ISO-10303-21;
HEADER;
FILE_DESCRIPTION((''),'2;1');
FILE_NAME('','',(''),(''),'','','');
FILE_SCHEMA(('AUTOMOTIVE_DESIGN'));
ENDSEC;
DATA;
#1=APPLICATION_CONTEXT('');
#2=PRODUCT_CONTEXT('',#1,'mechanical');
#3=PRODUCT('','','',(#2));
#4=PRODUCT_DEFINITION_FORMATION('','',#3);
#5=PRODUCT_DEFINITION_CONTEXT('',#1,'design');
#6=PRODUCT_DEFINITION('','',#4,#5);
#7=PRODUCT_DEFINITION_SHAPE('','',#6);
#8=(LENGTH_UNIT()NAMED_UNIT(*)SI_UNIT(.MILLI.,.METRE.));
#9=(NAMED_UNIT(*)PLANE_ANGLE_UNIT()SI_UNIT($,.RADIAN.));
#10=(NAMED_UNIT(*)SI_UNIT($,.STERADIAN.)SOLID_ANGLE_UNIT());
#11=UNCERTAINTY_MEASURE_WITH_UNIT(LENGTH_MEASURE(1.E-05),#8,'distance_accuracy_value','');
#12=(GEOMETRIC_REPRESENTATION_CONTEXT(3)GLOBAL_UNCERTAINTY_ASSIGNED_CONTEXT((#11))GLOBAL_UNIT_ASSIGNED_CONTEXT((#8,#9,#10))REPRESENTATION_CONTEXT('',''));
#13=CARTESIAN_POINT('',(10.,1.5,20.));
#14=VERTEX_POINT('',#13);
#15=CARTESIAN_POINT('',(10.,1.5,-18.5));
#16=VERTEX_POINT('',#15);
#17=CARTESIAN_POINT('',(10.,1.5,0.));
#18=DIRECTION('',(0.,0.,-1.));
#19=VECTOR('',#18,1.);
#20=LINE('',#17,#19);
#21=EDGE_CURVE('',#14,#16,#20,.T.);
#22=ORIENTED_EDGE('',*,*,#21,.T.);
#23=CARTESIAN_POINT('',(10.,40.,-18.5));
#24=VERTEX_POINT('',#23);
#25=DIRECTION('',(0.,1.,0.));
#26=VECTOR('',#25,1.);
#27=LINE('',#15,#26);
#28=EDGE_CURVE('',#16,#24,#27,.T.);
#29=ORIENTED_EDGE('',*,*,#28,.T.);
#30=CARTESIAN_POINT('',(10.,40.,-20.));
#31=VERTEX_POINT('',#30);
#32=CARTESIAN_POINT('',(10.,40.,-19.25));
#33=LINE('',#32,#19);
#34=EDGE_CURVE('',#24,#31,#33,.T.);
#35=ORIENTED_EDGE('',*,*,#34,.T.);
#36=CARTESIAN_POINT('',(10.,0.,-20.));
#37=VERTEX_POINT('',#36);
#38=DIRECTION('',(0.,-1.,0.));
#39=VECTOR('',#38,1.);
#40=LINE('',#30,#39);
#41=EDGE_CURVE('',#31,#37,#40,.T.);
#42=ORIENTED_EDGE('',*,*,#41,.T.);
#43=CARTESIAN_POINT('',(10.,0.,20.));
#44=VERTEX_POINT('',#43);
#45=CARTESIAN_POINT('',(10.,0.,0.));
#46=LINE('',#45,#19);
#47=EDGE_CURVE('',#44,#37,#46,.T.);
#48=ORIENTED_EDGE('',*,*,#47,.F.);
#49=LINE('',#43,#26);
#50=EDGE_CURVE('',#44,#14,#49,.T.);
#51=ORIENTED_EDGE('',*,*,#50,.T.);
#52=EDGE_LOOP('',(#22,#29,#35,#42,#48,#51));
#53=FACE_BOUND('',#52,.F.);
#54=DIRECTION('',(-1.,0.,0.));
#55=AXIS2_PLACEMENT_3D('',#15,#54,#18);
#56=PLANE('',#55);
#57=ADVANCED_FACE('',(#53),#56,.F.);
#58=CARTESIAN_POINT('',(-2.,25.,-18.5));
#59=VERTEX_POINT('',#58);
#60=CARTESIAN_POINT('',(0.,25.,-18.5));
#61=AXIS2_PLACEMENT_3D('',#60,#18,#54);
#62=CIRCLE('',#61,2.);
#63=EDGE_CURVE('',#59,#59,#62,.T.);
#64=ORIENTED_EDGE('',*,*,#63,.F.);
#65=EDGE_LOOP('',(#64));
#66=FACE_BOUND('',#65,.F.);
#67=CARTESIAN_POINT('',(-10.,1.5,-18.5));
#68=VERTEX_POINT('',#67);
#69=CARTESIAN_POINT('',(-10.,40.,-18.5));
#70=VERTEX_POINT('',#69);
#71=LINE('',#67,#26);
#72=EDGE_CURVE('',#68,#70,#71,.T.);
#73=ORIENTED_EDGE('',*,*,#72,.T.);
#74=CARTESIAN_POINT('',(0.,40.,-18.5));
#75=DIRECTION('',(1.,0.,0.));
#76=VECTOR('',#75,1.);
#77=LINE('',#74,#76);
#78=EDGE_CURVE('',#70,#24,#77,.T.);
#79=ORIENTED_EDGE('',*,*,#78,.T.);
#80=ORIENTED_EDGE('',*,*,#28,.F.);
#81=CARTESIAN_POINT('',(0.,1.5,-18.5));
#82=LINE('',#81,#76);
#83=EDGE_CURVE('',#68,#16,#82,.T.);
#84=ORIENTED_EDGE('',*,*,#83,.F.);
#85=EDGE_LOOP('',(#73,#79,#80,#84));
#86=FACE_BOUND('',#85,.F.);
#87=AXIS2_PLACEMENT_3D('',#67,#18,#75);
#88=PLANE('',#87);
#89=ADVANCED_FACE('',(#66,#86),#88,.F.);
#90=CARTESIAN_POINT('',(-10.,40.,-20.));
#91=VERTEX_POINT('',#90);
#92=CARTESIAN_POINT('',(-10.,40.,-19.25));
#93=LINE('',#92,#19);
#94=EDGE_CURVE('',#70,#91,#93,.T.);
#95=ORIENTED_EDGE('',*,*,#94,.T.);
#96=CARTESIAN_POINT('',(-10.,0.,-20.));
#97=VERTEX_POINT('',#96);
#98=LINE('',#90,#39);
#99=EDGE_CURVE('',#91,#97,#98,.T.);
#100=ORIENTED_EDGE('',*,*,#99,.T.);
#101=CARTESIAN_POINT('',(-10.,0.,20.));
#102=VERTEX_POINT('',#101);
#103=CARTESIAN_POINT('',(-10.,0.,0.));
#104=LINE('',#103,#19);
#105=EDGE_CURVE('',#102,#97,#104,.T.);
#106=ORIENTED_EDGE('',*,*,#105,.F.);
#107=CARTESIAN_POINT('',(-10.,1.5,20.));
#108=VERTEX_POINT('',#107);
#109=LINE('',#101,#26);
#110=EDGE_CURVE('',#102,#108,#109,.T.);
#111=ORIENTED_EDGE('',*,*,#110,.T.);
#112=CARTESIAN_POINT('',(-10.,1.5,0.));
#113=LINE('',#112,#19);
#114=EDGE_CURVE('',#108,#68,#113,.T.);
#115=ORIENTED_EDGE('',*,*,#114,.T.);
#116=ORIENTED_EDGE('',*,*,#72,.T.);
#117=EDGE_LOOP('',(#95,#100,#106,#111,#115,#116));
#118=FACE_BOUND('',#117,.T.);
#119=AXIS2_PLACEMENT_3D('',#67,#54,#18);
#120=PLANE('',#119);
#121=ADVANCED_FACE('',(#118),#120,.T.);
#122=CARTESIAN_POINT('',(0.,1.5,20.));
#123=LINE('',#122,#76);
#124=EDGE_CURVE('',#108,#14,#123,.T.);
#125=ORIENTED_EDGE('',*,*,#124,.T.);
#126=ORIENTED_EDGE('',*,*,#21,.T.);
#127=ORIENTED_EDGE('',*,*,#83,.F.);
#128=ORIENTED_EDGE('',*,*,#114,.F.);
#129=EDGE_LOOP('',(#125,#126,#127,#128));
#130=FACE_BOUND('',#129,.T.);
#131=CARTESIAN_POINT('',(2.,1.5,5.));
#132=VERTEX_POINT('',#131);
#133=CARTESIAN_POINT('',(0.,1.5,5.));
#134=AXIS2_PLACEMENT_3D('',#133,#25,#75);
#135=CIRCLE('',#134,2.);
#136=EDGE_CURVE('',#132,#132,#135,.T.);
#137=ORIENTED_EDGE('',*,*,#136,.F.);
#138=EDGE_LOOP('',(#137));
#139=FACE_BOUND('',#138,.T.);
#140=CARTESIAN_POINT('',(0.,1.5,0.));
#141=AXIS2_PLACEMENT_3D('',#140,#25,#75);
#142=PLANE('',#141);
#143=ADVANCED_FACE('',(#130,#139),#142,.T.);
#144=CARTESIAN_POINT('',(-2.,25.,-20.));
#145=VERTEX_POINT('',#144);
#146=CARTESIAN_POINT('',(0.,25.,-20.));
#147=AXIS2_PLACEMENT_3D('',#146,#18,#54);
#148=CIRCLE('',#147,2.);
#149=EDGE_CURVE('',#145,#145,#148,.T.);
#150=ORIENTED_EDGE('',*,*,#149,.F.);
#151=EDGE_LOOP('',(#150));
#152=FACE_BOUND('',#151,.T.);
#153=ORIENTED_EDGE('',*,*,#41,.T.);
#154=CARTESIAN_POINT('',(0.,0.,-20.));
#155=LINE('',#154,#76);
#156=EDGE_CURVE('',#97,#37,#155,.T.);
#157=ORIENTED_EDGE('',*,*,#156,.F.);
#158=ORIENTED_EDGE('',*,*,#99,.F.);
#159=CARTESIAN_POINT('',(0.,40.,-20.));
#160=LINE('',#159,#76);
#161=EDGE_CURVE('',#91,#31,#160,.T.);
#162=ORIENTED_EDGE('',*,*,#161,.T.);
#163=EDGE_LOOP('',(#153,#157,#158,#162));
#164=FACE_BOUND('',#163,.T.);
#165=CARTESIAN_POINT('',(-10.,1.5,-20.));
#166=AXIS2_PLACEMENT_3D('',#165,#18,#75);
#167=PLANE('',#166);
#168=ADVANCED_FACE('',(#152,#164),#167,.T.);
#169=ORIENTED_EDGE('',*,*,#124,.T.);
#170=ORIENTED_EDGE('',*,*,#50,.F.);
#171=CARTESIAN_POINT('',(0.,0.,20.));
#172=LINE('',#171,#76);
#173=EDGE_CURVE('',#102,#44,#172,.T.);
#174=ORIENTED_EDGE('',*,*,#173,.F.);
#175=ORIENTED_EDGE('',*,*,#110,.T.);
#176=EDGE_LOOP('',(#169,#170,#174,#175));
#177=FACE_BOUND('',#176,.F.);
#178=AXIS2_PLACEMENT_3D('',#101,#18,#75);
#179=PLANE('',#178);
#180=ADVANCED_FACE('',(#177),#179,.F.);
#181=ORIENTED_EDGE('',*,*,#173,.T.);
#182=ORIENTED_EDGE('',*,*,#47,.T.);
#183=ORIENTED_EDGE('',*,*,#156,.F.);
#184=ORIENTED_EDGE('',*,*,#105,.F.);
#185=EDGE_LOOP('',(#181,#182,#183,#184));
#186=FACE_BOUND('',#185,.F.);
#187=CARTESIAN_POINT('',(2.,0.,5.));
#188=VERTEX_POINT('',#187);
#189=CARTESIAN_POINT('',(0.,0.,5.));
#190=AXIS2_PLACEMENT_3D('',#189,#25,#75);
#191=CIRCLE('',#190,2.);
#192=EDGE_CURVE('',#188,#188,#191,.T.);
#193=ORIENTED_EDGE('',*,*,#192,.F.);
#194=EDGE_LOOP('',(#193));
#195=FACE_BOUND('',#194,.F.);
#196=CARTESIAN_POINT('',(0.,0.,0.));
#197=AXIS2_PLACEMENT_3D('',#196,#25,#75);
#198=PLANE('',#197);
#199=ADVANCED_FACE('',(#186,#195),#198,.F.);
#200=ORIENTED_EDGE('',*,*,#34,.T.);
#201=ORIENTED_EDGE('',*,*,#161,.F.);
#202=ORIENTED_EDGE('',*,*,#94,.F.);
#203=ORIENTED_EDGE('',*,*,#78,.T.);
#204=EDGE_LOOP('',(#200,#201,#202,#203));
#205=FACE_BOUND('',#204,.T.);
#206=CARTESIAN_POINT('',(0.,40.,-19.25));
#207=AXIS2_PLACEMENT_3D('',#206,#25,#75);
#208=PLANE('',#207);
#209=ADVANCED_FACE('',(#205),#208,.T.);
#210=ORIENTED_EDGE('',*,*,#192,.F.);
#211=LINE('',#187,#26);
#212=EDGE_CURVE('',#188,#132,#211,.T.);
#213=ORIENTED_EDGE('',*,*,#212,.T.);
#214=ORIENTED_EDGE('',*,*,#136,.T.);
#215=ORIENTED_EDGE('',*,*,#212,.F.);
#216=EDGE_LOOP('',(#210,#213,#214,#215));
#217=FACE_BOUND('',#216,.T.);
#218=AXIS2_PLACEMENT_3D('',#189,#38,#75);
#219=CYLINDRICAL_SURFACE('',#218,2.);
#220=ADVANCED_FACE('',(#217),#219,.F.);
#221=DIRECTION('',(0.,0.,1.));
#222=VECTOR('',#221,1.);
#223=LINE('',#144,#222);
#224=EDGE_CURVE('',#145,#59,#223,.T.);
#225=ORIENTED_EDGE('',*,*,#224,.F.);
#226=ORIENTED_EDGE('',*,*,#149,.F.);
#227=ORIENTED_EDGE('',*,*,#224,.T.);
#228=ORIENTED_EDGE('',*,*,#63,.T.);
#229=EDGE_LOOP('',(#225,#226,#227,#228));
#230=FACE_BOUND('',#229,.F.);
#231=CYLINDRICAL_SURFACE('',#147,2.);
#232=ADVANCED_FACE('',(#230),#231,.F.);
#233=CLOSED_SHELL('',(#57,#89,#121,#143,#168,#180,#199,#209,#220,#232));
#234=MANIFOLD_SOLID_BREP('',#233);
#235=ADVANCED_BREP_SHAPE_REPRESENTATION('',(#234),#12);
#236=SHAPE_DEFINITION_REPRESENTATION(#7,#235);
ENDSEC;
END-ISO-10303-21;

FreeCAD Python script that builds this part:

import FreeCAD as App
import Part
import Sketcher
from FreeCAD import Vector


def add_polygon(sketch, points):
    """Adds a closed chain of lines whose ends are joined by coincident constraints."""
    first, n = sketch.GeometryCount, len(points)
    for a, b in zip(points, points[1:] + points[:1]):
        sketch.addGeometry(Part.LineSegment(App.Vector(*a, 0), App.Vector(*b, 0)), False)
    for i in range(n):
        sketch.addConstraint(Sketcher.Constraint("Coincident", first + i, 2, first + (i + 1) % n, 1))

doc = App.newDocument("Part")
params = doc.addObject("Spreadsheet::Sheet", "Params")
for row, (alias, value) in enumerate([
    ("sketch1_diameter", "4 mm"),
    ("sketch1_width", "20 mm"),
    ("sketch1_height", "40 mm"),
    ("pad1_length", "1.5 mm"),
    ("sketch2_width", "20 mm"),
    ("sketch2_height", "1.5 mm"),
    ("pad2_length", "38.5 mm"),
    ("sketch3_diameter", "4 mm"),
    ("pocket1_length", "1.5 mm"),
], start=1):
    params.set(f"A{row}", alias)
    params.set(f"B{row}", "=" + value)
    params.setAlias(f"B{row}", alias)

body = doc.addObject("PartDesign::Body", "Body")

# Sketch on XZ plane
sketch1 = doc.addObject("Sketcher::SketchObject", "Sketch")
body.addObject(sketch1)
sketch1.AttachmentSupport = (doc.XZ_Plane, [""])
sketch1.MapMode = "FlatFace"
add_polygon(sketch1, [(-10, -20), (-10, 20), (10, 20), (10, -20)])  # lines 0-3
sketch1.addGeometry(Part.Circle(Vector(0, 5, 0), Vector(0, 0, 1), 2), False)  # 4
sketch1.addConstraint([
    Sketcher.Constraint("Vertical", 0),
    Sketcher.Constraint("Horizontal", 1),
    Sketcher.Constraint("Vertical", 2),
    Sketcher.Constraint("Horizontal", 3),
    Sketcher.Constraint("Symmetric", 0, 2, 2, 2, -1, 1),
    Sketcher.Constraint("PointOnObject", 4, 3, -2),
    Sketcher.Constraint("Diameter", 4, 4.0),
    Sketcher.Constraint("DistanceX", 1, 1, 1, 2, 20.0),
    Sketcher.Constraint("DistanceY", 0, 1, 0, 2, 40.0),
    Sketcher.Constraint("DistanceY", -1, 1, 4, 3, 5.0),
])
sketch1.setExpression("Constraints[10]", "Params.sketch1_diameter")
sketch1.setExpression("Constraints[11]", "Params.sketch1_width")
sketch1.setExpression("Constraints[12]", "Params.sketch1_height")
pad1 = doc.addObject("PartDesign::Pad", "Pad")
body.addObject(pad1)
pad1.Profile = sketch1
pad1.setExpression("Length", "Params.pad1_length")
pad1.Reversed = True

# Sketch on XZ plane
sketch2 = doc.addObject("Sketcher::SketchObject", "Sketch001")
body.addObject(sketch2)
sketch2.AttachmentSupport = (doc.XZ_Plane, [""])
sketch2.MapMode = "FlatFace"
sketch2.AttachmentOffset = App.Placement(Vector(0, 0, -1.5), App.Rotation())
add_polygon(sketch2, [(-10, -20), (-10, -18.5), (10, -18.5), (10, -20)])  # lines 0-3
sketch2.addConstraint([
    Sketcher.Constraint("Vertical", 0),
    Sketcher.Constraint("Horizontal", 1),
    Sketcher.Constraint("Vertical", 2),
    Sketcher.Constraint("Horizontal", 3),
    Sketcher.Constraint("DistanceX", 1, 1, 1, 2, 20.0),
    Sketcher.Constraint("DistanceY", 0, 1, 0, 2, 1.5),
    Sketcher.Constraint("DistanceX", 0, 2, -1, 1, 10.0),
    Sketcher.Constraint("DistanceY", 2, 2, -1, 1, 20.0),
])
sketch2.setExpression("Constraints[8]", "Params.sketch2_width")
sketch2.setExpression("Constraints[9]", "Params.sketch2_height")
pad2 = doc.addObject("PartDesign::Pad", "Pad001")
body.addObject(pad2)
pad2.Profile = sketch2
pad2.setExpression("Length", "Params.pad2_length")
pad2.Reversed = True

# Sketch on XY plane
sketch3 = doc.addObject("Sketcher::SketchObject", "Sketch002")
body.addObject(sketch3)
sketch3.AttachmentSupport = (doc.XY_Plane, [""])
sketch3.MapMode = "FlatFace"
sketch3.AttachmentOffset = App.Placement(Vector(0, 0, -20), App.Rotation())
sketch3.addGeometry(Part.Circle(Vector(0, 25, 0), Vector(0, 0, 1), 2), False)
sketch3.addConstraint([
    Sketcher.Constraint("PointOnObject", 0, 3, -2),
    Sketcher.Constraint("Diameter", 0, 4.0),
    Sketcher.Constraint("DistanceY", -1, 1, 0, 3, 25.0),
])
sketch3.setExpression("Constraints[1]", "Params.sketch3_diameter")
pocket1 = doc.addObject("PartDesign::Pocket", "Pocket")
body.addObject(pocket1)
pocket1.Profile = sketch3
pocket1.setExpression("Length", "Params.pocket1_length")
pocket1.Reversed = True

doc.recompute()
